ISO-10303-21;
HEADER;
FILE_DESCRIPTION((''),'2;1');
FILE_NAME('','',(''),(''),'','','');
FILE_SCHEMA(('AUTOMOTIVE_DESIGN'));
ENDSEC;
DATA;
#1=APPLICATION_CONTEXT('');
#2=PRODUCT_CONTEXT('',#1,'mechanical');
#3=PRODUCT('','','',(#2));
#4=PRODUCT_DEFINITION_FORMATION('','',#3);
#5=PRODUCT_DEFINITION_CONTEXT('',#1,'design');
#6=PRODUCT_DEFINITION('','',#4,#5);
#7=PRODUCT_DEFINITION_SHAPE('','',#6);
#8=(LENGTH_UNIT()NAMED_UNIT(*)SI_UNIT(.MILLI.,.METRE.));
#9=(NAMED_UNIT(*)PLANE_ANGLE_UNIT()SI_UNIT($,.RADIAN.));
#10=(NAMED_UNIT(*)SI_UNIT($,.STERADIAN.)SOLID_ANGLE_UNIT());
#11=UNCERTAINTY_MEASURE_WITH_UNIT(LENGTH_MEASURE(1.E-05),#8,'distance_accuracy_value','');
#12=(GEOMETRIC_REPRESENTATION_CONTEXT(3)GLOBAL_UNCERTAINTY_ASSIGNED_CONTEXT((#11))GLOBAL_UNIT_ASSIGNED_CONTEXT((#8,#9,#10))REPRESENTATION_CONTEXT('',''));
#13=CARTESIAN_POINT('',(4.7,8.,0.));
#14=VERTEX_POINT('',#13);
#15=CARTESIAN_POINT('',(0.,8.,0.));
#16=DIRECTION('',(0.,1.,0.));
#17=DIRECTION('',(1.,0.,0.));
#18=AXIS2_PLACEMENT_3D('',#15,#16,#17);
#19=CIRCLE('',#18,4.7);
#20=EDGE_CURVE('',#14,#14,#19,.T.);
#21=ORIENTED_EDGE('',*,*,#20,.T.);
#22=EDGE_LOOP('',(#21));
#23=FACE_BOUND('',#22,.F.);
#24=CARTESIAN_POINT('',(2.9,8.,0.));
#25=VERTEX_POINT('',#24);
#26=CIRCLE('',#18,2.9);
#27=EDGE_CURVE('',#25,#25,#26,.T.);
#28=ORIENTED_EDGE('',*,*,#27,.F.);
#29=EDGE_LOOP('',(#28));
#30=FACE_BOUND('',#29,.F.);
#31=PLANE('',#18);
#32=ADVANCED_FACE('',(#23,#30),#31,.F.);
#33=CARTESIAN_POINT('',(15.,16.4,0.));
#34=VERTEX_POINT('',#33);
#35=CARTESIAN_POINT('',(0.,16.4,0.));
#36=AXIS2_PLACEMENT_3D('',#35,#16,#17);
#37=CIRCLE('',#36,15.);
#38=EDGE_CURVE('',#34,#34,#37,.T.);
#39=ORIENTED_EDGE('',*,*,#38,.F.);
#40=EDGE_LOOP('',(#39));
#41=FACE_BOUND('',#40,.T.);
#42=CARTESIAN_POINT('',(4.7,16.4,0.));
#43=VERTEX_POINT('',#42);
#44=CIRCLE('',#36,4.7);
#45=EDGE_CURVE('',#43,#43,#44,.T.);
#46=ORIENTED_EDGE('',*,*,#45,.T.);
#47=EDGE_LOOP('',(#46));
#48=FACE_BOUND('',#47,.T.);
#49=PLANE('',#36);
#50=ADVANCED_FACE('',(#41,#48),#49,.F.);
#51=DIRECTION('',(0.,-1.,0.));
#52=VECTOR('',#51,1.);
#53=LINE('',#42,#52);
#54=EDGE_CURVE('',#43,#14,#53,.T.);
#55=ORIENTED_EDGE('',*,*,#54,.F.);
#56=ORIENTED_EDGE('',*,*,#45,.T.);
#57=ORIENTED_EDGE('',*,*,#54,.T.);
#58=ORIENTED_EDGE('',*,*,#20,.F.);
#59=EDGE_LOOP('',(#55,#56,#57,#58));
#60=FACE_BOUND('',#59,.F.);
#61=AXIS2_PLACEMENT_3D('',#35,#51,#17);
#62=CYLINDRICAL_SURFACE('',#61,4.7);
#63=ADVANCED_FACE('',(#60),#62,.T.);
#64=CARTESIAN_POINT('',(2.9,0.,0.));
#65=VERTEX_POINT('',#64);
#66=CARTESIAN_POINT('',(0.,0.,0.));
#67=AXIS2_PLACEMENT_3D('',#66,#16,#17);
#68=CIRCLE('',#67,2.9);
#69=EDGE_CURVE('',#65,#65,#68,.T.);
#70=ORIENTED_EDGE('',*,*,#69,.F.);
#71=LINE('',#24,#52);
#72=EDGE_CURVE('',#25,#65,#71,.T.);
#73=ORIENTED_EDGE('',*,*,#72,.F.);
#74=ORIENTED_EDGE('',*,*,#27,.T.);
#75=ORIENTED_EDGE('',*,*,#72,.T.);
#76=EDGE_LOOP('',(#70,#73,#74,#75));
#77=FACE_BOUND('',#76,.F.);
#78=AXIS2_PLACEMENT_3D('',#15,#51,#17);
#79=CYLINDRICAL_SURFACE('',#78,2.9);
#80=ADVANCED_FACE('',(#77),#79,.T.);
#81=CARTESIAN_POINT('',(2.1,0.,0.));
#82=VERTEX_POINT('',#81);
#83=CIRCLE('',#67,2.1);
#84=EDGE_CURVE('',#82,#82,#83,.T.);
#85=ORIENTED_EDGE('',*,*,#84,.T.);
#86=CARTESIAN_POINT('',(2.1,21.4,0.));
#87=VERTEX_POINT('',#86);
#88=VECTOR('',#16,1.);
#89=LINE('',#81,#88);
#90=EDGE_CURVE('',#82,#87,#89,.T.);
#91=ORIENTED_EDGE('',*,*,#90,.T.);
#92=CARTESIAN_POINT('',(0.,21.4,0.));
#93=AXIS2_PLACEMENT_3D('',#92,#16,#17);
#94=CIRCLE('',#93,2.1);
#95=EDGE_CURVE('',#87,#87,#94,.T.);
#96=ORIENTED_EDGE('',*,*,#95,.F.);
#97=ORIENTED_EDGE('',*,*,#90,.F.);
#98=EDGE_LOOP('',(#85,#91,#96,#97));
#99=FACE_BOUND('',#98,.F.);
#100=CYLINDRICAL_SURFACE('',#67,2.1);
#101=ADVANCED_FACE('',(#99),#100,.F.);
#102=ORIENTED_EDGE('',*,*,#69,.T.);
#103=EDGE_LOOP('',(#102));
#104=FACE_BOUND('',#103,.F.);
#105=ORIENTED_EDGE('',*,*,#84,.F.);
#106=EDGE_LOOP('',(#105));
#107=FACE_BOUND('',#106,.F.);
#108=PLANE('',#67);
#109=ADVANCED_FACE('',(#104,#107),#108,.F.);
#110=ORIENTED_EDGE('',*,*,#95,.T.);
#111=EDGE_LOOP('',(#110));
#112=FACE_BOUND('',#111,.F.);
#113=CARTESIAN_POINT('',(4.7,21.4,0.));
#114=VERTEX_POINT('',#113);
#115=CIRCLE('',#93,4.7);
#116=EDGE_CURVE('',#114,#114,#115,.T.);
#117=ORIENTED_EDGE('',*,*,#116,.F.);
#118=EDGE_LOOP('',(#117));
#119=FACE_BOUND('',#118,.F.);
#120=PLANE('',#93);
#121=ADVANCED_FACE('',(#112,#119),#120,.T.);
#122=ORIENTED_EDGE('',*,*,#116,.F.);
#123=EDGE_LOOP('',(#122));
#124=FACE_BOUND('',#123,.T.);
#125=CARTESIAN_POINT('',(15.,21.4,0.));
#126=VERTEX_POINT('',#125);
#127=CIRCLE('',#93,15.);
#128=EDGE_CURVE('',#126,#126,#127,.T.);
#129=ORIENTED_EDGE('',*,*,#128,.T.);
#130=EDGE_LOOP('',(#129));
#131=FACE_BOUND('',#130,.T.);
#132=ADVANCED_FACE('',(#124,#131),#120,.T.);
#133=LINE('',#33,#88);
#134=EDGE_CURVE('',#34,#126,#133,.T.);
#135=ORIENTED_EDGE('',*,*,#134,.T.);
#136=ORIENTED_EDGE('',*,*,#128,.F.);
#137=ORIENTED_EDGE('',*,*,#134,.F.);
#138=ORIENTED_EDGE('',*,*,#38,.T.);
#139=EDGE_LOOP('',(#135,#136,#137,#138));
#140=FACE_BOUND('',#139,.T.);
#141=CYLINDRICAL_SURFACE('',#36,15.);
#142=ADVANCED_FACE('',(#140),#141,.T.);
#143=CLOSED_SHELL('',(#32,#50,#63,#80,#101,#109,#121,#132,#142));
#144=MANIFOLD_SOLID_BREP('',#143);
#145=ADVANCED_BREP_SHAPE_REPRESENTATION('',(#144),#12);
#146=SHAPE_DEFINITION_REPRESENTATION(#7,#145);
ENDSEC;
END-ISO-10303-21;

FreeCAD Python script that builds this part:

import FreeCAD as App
import Part
import Sketcher


def add_polygon(sketch, points):
    """Adds a closed chain of lines whose ends are joined by coincident constraints."""
    first, n = sketch.GeometryCount, len(points)
    for a, b in zip(points, points[1:] + points[:1]):
        sketch.addGeometry(Part.LineSegment(App.Vector(*a, 0), App.Vector(*b, 0)), False)
    for i in range(n):
        sketch.addConstraint(Sketcher.Constraint("Coincident", first + i, 2, first + (i + 1) % n, 1))

doc = App.newDocument("Part")
body = doc.addObject("PartDesign::Body", "Body")

# Sketch on XY plane
sketch1 = body.newObject("Sketcher::SketchObject", "Sketch")
sketch1.AttachmentSupport = (doc.getObject("XY_Plane"), [""])
sketch1.MapMode = "FlatFace"
add_polygon(sketch1, [(2.1, 21.4), (2.1, 0), (2.9, 0), (2.9, 8), (4.7, 8), (4.7, 16.4), (15, 16.4), (15, 21.4)])  # lines 0-7
sketch1.addConstraint(Sketcher.Constraint("Vertical", 0))
sketch1.addConstraint(Sketcher.Constraint("Horizontal", 1))
sketch1.addConstraint(Sketcher.Constraint("Vertical", 2))
sketch1.addConstraint(Sketcher.Constraint("Horizontal", 3))
sketch1.addConstraint(Sketcher.Constraint("Vertical", 4))
sketch1.addConstraint(Sketcher.Constraint("Horizontal", 5))
sketch1.addConstraint(Sketcher.Constraint("Vertical", 6))
sketch1.addConstraint(Sketcher.Constraint("Horizontal", 7))
sketch1.addConstraint(Sketcher.Constraint("PointOnObject", 0, 2, -1))
sketch1.addConstraint(Sketcher.Constraint("DistanceY", 2, 1, 2, 2, 8.0))
sketch1.addConstraint(Sketcher.Constraint("DistanceY", 6, 1, 6, 2, 5.0))
sketch1.addConstraint(Sketcher.Constraint("DistanceX", -1, 1, 5, 2, 15.0))
sketch1.addConstraint(Sketcher.Constraint("DistanceX", -1, 1, 0, 2, 2.1))
sketch1.addConstraint(Sketcher.Constraint("DistanceX", -1, 1, 1, 2, 2.9))
sketch1.addConstraint(Sketcher.Constraint("DistanceX", -1, 1, 3, 2, 4.7))
sketch1.addConstraint(Sketcher.Constraint("DistanceY", -1, 1, 4, 2, 16.4))
revolution = body.newObject("PartDesign::Revolution", "Revolution")
revolution.Profile = sketch1
revolution.ReferenceAxis = (sketch1, ["V_Axis"])
revolution.Angle = 360

doc.recompute()
